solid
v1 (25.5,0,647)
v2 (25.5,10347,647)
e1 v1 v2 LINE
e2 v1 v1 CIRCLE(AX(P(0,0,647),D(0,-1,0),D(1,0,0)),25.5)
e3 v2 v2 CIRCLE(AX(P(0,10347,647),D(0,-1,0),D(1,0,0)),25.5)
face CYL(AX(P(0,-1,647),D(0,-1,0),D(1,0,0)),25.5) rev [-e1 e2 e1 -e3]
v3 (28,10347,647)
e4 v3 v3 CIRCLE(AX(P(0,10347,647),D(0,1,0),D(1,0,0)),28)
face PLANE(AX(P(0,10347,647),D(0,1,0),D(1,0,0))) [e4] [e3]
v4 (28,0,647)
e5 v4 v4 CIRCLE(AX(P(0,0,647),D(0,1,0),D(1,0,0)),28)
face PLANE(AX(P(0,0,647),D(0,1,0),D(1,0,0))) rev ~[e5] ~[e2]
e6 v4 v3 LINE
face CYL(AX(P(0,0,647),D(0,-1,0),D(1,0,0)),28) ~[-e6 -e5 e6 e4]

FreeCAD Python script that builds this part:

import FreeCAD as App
import Part
import Sketcher

V = App.Vector

doc = App.newDocument("Part")
body = doc.addObject("PartDesign::Body", "Body")

# Sketch on XZ plane
sketch1 = doc.addObject("Sketcher::SketchObject", "Sketch")
body.addObject(sketch1)
sketch1.AttachmentSupport = (doc.XZ_Plane, [""])
sketch1.MapMode = "FlatFace"
sketch1.AttachmentOffset = App.Placement(V(0, 0, 1), App.Rotation())
sketch1.addGeometry(Part.Circle(V(0, 647, 0), V(0, 0, 1), 25.5), False)
sketch1.addConstraint(Sketcher.Constraint("PointOnObject", 0, 3, -2))
sketch1.addConstraint(Sketcher.Constraint("Diameter", 0, 51.0))
sketch1.addConstraint(Sketcher.Constraint("DistanceY", -1, 1, 0, 3, 647.0))
pad1 = doc.addObject("PartDesign::Pad", "Pad")
body.addObject(pad1)
pad1.Profile = sketch1
pad1.Length = 10349
pad1.Reversed = True
body2 = doc.addObject("PartDesign::Body", "Body001")

# Sketch on XZ plane
sketch2 = doc.addObject("Sketcher::SketchObject", "Sketch001")
body2.addObject(sketch2)
sketch2.AttachmentSupport = (doc.getObject("XZ_Plane001"), [""])
sketch2.MapMode = "FlatFace"
sketch2.addGeometry(Part.Circle(V(0, 647, 0), V(0, 0, 1), 28), False)
sketch2.addConstraint(Sketcher.Constraint("PointOnObject", 0, 3, -2))
sketch2.addConstraint(Sketcher.Constraint("Diameter", 0, 56.0))
sketch2.addConstraint(Sketcher.Constraint("DistanceY", -1, 1, 0, 3, 647.0))
pad2 = doc.addObject("PartDesign::Pad", "Pad001")
body2.addObject(pad2)
pad2.Profile = sketch2
pad2.Length = 10347
pad2.Reversed = True
doc.recompute()

boolean = doc.addObject("PartDesign::Boolean", "Boolean")
body2.addObject(boolean)
boolean.Type = "Cut"
boolean.addObjects([body])

doc.recompute()
